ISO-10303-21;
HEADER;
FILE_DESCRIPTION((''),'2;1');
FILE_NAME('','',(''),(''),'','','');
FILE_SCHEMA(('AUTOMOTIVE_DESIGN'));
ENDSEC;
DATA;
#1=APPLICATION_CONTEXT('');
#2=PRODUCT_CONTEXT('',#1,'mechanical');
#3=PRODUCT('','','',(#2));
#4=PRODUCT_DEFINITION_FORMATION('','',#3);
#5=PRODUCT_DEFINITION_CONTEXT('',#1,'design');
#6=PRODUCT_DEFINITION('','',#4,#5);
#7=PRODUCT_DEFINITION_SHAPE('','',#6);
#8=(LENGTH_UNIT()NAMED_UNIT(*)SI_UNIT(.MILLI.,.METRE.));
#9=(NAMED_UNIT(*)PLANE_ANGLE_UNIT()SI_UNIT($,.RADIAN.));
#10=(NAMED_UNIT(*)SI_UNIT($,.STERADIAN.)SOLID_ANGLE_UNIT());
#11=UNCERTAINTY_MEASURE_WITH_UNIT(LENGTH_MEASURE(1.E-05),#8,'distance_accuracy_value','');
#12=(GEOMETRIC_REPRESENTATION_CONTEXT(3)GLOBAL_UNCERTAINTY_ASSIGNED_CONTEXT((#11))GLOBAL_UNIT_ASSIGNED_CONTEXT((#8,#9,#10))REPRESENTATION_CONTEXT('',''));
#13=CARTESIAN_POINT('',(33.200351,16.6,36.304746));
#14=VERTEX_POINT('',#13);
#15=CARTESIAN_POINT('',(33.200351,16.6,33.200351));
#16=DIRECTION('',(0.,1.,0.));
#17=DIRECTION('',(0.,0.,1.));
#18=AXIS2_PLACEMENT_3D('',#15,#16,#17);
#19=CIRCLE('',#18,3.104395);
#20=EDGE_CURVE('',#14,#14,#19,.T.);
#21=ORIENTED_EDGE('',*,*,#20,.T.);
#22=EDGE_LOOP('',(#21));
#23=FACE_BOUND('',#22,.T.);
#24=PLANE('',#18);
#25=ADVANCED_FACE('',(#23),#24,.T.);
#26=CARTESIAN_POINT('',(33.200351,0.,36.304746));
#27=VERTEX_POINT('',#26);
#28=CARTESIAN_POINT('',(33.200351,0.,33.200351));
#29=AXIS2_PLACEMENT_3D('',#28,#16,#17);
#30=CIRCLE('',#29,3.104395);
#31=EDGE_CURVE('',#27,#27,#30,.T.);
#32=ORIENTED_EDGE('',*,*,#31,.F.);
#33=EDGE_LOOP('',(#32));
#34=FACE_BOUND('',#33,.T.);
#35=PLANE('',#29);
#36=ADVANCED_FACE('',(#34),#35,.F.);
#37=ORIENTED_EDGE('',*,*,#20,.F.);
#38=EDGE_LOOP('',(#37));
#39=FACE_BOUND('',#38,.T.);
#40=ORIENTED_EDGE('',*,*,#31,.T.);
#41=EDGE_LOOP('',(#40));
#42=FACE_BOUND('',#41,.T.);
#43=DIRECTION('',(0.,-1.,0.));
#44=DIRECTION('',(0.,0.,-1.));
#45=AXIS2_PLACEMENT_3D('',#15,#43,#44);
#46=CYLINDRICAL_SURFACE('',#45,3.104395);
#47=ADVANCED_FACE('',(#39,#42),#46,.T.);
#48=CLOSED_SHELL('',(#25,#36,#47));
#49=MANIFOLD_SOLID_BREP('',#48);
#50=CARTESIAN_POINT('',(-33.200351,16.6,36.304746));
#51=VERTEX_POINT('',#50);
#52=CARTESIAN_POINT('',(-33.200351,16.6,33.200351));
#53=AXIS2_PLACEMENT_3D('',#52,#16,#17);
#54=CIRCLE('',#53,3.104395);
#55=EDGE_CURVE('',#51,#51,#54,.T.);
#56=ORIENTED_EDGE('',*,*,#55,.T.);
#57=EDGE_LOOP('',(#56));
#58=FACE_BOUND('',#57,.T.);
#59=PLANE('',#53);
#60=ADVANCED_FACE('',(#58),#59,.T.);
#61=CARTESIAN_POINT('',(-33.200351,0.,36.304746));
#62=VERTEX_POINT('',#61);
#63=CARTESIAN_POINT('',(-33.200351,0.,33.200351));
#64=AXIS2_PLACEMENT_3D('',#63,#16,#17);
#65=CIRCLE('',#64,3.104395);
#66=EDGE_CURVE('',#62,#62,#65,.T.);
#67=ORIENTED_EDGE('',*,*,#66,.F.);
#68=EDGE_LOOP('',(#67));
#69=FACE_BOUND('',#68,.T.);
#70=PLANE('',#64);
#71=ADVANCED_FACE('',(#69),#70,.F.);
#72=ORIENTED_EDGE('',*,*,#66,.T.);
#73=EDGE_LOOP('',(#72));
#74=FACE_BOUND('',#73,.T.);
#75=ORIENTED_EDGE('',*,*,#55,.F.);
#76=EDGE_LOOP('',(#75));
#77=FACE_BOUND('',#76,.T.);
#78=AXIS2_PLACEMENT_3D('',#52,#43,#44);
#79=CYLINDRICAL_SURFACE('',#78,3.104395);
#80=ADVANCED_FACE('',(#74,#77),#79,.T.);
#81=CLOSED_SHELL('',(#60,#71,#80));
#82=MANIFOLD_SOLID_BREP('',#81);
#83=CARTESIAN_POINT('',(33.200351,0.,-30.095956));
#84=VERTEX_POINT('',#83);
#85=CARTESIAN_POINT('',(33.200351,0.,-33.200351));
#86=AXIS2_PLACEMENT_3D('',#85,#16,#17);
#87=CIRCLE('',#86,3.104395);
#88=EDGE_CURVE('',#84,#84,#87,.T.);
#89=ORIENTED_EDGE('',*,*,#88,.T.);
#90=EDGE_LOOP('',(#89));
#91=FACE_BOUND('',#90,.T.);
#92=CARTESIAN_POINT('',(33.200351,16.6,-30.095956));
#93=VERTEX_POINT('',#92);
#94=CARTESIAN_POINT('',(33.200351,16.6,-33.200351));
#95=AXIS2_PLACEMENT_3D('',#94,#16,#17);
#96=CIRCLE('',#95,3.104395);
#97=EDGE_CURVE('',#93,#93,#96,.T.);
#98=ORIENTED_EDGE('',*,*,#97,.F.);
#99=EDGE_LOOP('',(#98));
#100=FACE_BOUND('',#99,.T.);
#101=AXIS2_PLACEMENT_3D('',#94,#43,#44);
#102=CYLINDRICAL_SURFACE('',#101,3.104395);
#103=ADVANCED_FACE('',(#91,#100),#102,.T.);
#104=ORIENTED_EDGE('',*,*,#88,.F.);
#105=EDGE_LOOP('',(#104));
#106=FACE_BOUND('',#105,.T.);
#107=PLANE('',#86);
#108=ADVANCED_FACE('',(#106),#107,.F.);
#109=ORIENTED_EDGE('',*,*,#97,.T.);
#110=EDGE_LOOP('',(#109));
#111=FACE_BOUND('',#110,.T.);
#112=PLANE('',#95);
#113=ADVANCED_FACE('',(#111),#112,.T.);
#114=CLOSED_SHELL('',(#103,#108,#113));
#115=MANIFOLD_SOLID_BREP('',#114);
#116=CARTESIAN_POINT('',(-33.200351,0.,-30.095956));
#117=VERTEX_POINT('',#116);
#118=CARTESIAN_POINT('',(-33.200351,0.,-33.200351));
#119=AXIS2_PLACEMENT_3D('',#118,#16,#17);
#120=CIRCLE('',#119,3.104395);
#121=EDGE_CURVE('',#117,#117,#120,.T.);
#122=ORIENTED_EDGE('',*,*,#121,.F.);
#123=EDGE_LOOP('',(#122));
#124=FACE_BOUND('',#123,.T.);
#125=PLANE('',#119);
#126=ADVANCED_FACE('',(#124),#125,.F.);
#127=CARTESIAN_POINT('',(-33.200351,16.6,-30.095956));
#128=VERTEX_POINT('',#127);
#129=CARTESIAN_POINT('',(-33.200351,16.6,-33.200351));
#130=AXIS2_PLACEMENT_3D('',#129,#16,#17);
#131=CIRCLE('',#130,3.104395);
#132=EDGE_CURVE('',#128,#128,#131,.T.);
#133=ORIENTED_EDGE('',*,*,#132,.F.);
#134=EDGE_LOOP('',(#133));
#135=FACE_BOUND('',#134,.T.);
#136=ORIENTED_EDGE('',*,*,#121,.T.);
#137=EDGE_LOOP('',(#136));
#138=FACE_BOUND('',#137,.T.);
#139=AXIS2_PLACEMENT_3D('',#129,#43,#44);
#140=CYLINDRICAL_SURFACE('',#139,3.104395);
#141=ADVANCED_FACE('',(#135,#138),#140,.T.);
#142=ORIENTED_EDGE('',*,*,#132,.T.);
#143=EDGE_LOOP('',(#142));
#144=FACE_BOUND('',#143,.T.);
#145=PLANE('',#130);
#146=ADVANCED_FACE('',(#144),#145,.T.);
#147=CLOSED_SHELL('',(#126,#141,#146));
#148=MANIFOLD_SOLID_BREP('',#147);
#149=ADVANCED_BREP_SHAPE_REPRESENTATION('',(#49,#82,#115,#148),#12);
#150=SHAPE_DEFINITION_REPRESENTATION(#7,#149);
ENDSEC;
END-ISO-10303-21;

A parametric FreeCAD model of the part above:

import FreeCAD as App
import Part
import Sketcher

doc = App.newDocument("Part")
body = doc.addObject("PartDesign::Body", "Body")

# Sketch on XZ plane
sketch1 = body.newObject("Sketcher::SketchObject", "Sketch")
sketch1.AttachmentSupport = (doc.getObject("XZ_Plane"), [""])
sketch1.MapMode = "FlatFace"
sketch1.addGeometry(Part.Circle(App.Vector(-33.2, -33.2, 0), App.Vector(0, 0, 1), 3.1), False)
sketch1.addConstraint(Sketcher.Constraint("Diameter", 0, 6.208789))
sketch1.addConstraint(Sketcher.Constraint("DistanceX", 0, 3, -1, 1, 33.200351))
sketch1.addConstraint(Sketcher.Constraint("DistanceY", 0, 3, -1, 1, 33.200351))
pad1 = body.newObject("PartDesign::Pad", "Pad")
pad1.Profile = sketch1
pad1.Length = 16.6
pad1.Reversed = True
body2 = doc.addObject("PartDesign::Body", "Body001")

# Sketch on XZ plane
sketch2 = body2.newObject("Sketcher::SketchObject", "Sketch001")
sketch2.AttachmentSupport = (doc.getObject("XZ_Plane001"), [""])
sketch2.MapMode = "FlatFace"
sketch2.addGeometry(Part.Circle(App.Vector(33.2, -33.2, 0), App.Vector(0, 0, 1), 3.1), False)
sketch2.addConstraint(Sketcher.Constraint("Diameter", 0, 6.208789))
sketch2.addConstraint(Sketcher.Constraint("DistanceX", -1, 1, 0, 3, 33.200351))
sketch2.addConstraint(Sketcher.Constraint("DistanceY", 0, 3, -1, 1, 33.200351))
pad2 = body2.newObject("PartDesign::Pad", "Pad001")
pad2.Profile = sketch2
pad2.Length = 16.6
pad2.Reversed = True
body3 = doc.addObject("PartDesign::Body", "Body002")

# Sketch on XZ plane
sketch3 = body3.newObject("Sketcher::SketchObject", "Sketch002")
sketch3.AttachmentSupport = (doc.getObject("XZ_Plane002"), [""])
sketch3.MapMode = "FlatFace"
sketch3.addGeometry(Part.Circle(App.Vector(33.2, 33.2, 0), App.Vector(0, 0, 1), 3.1), False)
sketch3.addConstraint(Sketcher.Constraint("Diameter", 0, 6.208789))
sketch3.addConstraint(Sketcher.Constraint("DistanceX", -1, 1, 0, 3, 33.200351))
sketch3.addConstraint(Sketcher.Constraint("DistanceY", -1, 1, 0, 3, 33.200351))
pad3 = body3.newObject("PartDesign::Pad", "Pad002")
pad3.Profile = sketch3
pad3.Length = 16.6
pad3.Reversed = True
body4 = doc.addObject("PartDesign::Body", "Body003")

# Sketch on XZ plane
sketch4 = body4.newObject("Sketcher::SketchObject", "Sketch003")
sketch4.AttachmentSupport = (doc.getObject("XZ_Plane003"), [""])
sketch4.MapMode = "FlatFace"
sketch4.addGeometry(Part.Circle(App.Vector(-33.2, 33.2, 0), App.Vector(0, 0, 1), 3.1), False)
sketch4.addConstraint(Sketcher.Constraint("Diameter", 0, 6.208789))
sketch4.addConstraint(Sketcher.Constraint("DistanceX", 0, 3, -1, 1, 33.200351))
sketch4.addConstraint(Sketcher.Constraint("DistanceY", -1, 1, 0, 3, 33.200351))
pad4 = body4.newObject("PartDesign::Pad", "Pad003")
pad4.Profile = sketch4
pad4.Length = 16.6
pad4.Reversed = True

doc.recompute()
